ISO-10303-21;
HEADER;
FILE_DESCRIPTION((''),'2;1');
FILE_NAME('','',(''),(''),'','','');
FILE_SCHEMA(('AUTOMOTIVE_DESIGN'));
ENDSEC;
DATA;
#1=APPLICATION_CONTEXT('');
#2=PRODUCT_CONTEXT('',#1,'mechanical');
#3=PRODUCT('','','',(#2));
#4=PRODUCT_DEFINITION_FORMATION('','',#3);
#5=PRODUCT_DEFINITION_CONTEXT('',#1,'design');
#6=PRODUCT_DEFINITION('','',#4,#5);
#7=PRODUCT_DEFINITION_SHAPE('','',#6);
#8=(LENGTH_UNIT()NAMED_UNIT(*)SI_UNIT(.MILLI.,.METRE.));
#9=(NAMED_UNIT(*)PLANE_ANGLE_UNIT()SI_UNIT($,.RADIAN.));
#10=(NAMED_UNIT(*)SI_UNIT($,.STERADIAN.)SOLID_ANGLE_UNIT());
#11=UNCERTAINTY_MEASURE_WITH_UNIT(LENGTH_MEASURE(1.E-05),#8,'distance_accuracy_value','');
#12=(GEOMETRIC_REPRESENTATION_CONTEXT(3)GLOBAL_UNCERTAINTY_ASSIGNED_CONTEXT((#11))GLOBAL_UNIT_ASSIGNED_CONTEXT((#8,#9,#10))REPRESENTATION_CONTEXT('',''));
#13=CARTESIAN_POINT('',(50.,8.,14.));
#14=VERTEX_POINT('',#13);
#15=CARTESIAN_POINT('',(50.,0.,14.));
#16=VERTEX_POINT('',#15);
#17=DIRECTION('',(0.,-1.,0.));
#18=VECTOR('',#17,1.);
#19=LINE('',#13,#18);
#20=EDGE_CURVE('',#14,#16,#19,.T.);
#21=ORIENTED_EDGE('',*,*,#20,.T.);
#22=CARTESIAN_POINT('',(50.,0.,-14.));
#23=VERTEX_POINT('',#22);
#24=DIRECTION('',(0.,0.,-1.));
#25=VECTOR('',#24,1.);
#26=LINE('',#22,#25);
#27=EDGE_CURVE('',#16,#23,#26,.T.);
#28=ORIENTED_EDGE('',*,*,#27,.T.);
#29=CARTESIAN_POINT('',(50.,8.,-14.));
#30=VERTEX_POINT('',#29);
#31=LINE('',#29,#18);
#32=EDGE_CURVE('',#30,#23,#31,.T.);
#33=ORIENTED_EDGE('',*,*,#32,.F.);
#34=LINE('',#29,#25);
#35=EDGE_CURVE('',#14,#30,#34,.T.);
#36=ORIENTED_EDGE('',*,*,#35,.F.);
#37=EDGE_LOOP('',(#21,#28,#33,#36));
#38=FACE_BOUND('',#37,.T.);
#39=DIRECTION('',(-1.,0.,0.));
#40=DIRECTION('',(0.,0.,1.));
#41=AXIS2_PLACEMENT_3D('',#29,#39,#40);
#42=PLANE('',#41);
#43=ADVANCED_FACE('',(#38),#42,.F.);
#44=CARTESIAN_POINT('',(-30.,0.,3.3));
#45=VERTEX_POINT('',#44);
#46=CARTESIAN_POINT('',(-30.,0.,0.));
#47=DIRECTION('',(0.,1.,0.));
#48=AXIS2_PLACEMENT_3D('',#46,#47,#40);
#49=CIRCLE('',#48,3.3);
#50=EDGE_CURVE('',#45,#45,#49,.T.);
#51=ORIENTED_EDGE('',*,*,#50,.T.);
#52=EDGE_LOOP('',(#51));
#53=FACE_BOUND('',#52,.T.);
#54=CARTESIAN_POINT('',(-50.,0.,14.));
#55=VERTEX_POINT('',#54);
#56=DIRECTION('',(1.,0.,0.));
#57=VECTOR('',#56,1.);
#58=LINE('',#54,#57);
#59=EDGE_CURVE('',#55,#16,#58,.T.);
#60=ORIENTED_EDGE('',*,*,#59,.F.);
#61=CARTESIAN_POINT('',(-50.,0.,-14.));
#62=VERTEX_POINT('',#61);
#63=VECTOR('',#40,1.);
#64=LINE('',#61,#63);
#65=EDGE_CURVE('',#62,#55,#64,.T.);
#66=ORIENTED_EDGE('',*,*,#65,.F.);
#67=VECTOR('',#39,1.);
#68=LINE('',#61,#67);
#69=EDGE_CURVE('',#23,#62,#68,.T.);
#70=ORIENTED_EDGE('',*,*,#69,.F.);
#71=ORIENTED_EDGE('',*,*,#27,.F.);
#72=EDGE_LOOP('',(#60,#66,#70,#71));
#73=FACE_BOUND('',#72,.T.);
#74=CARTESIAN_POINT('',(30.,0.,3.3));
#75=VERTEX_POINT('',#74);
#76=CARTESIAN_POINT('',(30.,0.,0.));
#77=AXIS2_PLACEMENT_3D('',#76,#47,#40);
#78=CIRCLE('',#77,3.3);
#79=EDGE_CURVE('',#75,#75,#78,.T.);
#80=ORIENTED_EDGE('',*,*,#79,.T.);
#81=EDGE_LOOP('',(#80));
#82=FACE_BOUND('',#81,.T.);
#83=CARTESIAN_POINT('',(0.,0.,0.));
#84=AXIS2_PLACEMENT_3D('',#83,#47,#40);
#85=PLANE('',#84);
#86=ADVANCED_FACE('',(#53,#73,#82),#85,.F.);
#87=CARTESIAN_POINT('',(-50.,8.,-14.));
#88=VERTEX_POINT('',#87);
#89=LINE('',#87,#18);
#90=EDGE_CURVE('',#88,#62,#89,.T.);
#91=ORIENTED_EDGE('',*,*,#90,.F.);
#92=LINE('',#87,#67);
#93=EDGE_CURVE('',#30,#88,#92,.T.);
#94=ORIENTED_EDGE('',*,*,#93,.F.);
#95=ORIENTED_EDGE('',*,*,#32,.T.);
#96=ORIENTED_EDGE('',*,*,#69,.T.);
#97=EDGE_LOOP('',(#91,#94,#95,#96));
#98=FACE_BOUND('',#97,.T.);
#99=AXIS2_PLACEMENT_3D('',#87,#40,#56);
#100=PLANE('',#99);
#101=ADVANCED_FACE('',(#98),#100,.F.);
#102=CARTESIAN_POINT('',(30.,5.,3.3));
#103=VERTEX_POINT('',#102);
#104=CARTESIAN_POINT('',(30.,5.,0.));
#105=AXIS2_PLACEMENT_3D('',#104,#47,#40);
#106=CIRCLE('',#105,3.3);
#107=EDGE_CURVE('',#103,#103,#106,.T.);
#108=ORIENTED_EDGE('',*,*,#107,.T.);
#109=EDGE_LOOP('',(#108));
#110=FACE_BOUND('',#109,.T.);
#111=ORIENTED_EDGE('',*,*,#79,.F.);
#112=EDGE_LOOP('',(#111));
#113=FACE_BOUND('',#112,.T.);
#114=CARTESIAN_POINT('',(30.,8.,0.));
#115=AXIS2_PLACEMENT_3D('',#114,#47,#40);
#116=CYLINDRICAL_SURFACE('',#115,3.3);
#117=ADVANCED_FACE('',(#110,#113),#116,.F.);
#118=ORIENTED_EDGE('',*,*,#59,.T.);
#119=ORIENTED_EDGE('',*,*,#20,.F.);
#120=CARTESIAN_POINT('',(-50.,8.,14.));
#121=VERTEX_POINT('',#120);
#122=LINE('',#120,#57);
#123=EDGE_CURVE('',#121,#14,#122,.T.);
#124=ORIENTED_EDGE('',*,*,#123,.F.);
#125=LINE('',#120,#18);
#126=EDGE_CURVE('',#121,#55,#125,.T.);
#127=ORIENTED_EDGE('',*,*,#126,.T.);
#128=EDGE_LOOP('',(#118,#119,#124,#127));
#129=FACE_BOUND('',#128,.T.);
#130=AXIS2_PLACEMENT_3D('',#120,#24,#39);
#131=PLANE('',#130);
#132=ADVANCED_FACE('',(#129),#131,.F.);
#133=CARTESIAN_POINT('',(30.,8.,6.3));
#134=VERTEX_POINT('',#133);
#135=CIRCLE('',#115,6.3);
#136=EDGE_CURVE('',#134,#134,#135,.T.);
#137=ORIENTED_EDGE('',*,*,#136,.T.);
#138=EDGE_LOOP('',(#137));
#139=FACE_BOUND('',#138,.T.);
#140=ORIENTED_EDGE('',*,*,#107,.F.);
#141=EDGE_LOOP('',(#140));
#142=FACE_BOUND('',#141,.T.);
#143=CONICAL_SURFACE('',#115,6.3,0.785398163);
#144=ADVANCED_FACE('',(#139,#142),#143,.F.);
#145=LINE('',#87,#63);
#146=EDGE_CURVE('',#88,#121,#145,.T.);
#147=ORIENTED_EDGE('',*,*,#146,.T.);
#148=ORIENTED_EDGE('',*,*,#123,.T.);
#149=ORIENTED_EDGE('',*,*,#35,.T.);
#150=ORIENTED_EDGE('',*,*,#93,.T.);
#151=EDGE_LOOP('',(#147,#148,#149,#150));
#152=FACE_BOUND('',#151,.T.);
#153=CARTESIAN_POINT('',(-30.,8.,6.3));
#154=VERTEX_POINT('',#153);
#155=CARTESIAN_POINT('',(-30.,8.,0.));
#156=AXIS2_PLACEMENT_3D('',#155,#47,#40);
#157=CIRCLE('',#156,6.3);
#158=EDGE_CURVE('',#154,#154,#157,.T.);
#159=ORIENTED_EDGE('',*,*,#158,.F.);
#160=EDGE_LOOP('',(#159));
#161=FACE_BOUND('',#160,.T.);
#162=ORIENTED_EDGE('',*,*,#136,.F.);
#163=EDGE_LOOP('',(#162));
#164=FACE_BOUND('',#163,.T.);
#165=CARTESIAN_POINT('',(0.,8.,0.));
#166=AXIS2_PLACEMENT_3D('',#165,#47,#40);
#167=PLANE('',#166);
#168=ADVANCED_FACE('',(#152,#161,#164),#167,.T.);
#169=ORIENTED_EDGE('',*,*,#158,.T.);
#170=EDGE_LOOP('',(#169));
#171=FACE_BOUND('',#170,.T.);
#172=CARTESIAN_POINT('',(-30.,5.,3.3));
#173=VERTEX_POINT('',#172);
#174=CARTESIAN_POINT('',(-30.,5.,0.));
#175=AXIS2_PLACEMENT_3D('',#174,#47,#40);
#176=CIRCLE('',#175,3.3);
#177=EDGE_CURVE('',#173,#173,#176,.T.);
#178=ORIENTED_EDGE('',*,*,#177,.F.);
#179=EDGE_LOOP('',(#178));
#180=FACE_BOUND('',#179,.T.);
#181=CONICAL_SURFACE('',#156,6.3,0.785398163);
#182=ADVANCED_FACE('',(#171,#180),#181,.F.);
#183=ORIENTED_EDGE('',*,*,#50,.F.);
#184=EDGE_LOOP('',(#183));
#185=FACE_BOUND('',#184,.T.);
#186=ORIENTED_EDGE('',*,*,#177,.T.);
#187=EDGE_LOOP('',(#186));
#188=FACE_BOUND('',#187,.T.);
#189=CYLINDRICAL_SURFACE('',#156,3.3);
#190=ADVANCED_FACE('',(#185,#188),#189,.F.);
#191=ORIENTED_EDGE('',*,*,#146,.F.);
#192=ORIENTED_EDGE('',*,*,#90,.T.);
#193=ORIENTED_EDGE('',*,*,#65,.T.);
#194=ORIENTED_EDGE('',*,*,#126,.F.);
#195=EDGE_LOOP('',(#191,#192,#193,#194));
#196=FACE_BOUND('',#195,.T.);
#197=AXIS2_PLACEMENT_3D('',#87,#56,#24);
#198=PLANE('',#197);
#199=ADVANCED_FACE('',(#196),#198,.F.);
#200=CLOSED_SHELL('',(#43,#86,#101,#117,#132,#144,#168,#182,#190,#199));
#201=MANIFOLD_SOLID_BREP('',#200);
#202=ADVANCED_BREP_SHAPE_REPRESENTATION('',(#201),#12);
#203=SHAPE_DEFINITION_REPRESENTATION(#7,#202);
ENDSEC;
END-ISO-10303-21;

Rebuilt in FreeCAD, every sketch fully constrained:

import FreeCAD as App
import Part
import Sketcher

V = App.Vector
Q = App.Units.Quantity

doc = App.newDocument("Part")
params = doc.addObject("Spreadsheet::Sheet", "Params")
for row, (alias, value) in enumerate([
    ("sketch1_width", "100 mm"),
    ("sketch1_height", "28 mm"),
    ("pad1_length", "8 mm"),
    ("sketch2_diameter", "6.6 mm"),
    ("hole_diameter", "6.6 mm"),
    ("hole_depth", "8 mm"),
    ("hole_csink_diameter", "12.6 mm"),
], start=1):
    params.set(f"A{row}", alias)
    params.set(f"B{row}", "=" + value)
    params.setAlias(f"B{row}", alias)

body = doc.addObject("PartDesign::Body", "Body")

# Sketch on XZ plane
sketch1 = body.newObject("Sketcher::SketchObject", "Sketch")
sketch1.AttachmentSupport = (doc.getObject("XZ_Plane"), [""])
sketch1.MapMode = "FlatFace"
sketch1.addGeometry([
    Part.LineSegment(V(-50, -14, 0), V(-50, 14, 0)),
    Part.LineSegment(V(-50, 14, 0), V(50, 14, 0)),
    Part.LineSegment(V(50, 14, 0), V(50, -14, 0)),
    Part.LineSegment(V(50, -14, 0), V(-50, -14, 0)),
], False)
sketch1.addConstraint([
    Sketcher.Constraint("Coincident", 0, 2, 1, 1),
    Sketcher.Constraint("Coincident", 1, 2, 2, 1),
    Sketcher.Constraint("Coincident", 2, 2, 3, 1),
    Sketcher.Constraint("Coincident", 3, 2, 0, 1),
    Sketcher.Constraint("Vertical", 0),
    Sketcher.Constraint("Horizontal", 1),
    Sketcher.Constraint("Vertical", 2),
    Sketcher.Constraint("Horizontal", 3),
    Sketcher.Constraint("Symmetric", 0, 2, 2, 2, -1, 1),
    Sketcher.Constraint("DistanceX", 1, 1, 1, 2, Q("100 mm")),
    Sketcher.Constraint("DistanceY", 0, 1, 0, 2, Q("28 mm")),
])
sketch1.setExpression("Constraints[9]", "Params.sketch1_width")
sketch1.setExpression("Constraints[10]", "Params.sketch1_height")
pad1 = body.newObject("PartDesign::Pad", "Pad")
pad1.Profile = sketch1
pad1.setExpression("Length", "Params.pad1_length")
pad1.Reversed = True

# Sketch on XZ plane
sketch2 = body.newObject("Sketcher::SketchObject", "Sketch001")
sketch2.AttachmentSupport = (doc.getObject("XZ_Plane"), [""])
sketch2.MapMode = "FlatFace"
sketch2.AttachmentOffset = App.Placement(V(0, 0, -8), App.Rotation())
sketch2.addGeometry([
    Part.Circle(V(30, 0, 0), V(0, 0, 1), 3.3),
    Part.Circle(V(-30, 0, 0), V(0, 0, 1), 3.3),
], False)
sketch2.addConstraint([
    Sketcher.Constraint("Equal", 0, 1),
    Sketcher.Constraint("Symmetric", 0, 3, 1, 3, -1, 1),
    Sketcher.Constraint("PointOnObject", 0, 3, -1),
    Sketcher.Constraint("Diameter", 0, Q("6.6 mm")),
    Sketcher.Constraint("DistanceX", -1, 1, 0, 3, Q("30 mm")),
])
sketch2.setExpression("Constraints[3]", "Params.sketch2_diameter")
doc.recompute()
hole = body.newObject("PartDesign::Hole", "Hole")
hole.Profile = sketch2
hole.ThreadType = "None"
hole.setExpression("Diameter", "Params.hole_diameter")
hole.DepthType = "Dimension"
hole.setExpression("Depth", "Params.hole_depth")
hole.DrillPoint = "Flat"
hole.HoleCutType = "Countersink"
hole.setExpression("HoleCutDiameter", "Params.hole_csink_diameter")
hole.HoleCutCountersinkAngle = 90
hole.Reversed = True

doc.recompute()
